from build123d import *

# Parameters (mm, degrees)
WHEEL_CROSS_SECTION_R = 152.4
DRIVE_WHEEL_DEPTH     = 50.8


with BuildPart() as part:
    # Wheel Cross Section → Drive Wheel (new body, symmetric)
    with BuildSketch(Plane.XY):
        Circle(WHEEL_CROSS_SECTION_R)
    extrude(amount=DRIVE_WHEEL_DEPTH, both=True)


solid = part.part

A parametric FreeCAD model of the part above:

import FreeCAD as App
import Part
import Sketcher
Q = App.Units.Quantity

doc = App.newDocument("Part")
body = doc.addObject("PartDesign::Body", "Body")

sketch1 = body.newObject("Sketcher::SketchObject", "Sketch")
sketch1.AttachmentSupport = (doc.getObject("XY_Plane"), [""])
sketch1.MapMode = "FlatFace"
sketch1.addGeometry(Part.Circle(App.Vector(0, 0, 0), App.Vector(0, 0, 1), 152), False)
sketch1.addConstraint([
    Sketcher.Constraint("Coincident", 0, 3, -1, 1),
    Sketcher.Constraint("Diameter", 0, Q("12 in")),
])
pad1 = body.newObject("PartDesign::Pad", "Pad")
pad1.Profile = sketch1
pad1.Length = Q("4 in")
pad1.Midplane = True

doc.recompute()
